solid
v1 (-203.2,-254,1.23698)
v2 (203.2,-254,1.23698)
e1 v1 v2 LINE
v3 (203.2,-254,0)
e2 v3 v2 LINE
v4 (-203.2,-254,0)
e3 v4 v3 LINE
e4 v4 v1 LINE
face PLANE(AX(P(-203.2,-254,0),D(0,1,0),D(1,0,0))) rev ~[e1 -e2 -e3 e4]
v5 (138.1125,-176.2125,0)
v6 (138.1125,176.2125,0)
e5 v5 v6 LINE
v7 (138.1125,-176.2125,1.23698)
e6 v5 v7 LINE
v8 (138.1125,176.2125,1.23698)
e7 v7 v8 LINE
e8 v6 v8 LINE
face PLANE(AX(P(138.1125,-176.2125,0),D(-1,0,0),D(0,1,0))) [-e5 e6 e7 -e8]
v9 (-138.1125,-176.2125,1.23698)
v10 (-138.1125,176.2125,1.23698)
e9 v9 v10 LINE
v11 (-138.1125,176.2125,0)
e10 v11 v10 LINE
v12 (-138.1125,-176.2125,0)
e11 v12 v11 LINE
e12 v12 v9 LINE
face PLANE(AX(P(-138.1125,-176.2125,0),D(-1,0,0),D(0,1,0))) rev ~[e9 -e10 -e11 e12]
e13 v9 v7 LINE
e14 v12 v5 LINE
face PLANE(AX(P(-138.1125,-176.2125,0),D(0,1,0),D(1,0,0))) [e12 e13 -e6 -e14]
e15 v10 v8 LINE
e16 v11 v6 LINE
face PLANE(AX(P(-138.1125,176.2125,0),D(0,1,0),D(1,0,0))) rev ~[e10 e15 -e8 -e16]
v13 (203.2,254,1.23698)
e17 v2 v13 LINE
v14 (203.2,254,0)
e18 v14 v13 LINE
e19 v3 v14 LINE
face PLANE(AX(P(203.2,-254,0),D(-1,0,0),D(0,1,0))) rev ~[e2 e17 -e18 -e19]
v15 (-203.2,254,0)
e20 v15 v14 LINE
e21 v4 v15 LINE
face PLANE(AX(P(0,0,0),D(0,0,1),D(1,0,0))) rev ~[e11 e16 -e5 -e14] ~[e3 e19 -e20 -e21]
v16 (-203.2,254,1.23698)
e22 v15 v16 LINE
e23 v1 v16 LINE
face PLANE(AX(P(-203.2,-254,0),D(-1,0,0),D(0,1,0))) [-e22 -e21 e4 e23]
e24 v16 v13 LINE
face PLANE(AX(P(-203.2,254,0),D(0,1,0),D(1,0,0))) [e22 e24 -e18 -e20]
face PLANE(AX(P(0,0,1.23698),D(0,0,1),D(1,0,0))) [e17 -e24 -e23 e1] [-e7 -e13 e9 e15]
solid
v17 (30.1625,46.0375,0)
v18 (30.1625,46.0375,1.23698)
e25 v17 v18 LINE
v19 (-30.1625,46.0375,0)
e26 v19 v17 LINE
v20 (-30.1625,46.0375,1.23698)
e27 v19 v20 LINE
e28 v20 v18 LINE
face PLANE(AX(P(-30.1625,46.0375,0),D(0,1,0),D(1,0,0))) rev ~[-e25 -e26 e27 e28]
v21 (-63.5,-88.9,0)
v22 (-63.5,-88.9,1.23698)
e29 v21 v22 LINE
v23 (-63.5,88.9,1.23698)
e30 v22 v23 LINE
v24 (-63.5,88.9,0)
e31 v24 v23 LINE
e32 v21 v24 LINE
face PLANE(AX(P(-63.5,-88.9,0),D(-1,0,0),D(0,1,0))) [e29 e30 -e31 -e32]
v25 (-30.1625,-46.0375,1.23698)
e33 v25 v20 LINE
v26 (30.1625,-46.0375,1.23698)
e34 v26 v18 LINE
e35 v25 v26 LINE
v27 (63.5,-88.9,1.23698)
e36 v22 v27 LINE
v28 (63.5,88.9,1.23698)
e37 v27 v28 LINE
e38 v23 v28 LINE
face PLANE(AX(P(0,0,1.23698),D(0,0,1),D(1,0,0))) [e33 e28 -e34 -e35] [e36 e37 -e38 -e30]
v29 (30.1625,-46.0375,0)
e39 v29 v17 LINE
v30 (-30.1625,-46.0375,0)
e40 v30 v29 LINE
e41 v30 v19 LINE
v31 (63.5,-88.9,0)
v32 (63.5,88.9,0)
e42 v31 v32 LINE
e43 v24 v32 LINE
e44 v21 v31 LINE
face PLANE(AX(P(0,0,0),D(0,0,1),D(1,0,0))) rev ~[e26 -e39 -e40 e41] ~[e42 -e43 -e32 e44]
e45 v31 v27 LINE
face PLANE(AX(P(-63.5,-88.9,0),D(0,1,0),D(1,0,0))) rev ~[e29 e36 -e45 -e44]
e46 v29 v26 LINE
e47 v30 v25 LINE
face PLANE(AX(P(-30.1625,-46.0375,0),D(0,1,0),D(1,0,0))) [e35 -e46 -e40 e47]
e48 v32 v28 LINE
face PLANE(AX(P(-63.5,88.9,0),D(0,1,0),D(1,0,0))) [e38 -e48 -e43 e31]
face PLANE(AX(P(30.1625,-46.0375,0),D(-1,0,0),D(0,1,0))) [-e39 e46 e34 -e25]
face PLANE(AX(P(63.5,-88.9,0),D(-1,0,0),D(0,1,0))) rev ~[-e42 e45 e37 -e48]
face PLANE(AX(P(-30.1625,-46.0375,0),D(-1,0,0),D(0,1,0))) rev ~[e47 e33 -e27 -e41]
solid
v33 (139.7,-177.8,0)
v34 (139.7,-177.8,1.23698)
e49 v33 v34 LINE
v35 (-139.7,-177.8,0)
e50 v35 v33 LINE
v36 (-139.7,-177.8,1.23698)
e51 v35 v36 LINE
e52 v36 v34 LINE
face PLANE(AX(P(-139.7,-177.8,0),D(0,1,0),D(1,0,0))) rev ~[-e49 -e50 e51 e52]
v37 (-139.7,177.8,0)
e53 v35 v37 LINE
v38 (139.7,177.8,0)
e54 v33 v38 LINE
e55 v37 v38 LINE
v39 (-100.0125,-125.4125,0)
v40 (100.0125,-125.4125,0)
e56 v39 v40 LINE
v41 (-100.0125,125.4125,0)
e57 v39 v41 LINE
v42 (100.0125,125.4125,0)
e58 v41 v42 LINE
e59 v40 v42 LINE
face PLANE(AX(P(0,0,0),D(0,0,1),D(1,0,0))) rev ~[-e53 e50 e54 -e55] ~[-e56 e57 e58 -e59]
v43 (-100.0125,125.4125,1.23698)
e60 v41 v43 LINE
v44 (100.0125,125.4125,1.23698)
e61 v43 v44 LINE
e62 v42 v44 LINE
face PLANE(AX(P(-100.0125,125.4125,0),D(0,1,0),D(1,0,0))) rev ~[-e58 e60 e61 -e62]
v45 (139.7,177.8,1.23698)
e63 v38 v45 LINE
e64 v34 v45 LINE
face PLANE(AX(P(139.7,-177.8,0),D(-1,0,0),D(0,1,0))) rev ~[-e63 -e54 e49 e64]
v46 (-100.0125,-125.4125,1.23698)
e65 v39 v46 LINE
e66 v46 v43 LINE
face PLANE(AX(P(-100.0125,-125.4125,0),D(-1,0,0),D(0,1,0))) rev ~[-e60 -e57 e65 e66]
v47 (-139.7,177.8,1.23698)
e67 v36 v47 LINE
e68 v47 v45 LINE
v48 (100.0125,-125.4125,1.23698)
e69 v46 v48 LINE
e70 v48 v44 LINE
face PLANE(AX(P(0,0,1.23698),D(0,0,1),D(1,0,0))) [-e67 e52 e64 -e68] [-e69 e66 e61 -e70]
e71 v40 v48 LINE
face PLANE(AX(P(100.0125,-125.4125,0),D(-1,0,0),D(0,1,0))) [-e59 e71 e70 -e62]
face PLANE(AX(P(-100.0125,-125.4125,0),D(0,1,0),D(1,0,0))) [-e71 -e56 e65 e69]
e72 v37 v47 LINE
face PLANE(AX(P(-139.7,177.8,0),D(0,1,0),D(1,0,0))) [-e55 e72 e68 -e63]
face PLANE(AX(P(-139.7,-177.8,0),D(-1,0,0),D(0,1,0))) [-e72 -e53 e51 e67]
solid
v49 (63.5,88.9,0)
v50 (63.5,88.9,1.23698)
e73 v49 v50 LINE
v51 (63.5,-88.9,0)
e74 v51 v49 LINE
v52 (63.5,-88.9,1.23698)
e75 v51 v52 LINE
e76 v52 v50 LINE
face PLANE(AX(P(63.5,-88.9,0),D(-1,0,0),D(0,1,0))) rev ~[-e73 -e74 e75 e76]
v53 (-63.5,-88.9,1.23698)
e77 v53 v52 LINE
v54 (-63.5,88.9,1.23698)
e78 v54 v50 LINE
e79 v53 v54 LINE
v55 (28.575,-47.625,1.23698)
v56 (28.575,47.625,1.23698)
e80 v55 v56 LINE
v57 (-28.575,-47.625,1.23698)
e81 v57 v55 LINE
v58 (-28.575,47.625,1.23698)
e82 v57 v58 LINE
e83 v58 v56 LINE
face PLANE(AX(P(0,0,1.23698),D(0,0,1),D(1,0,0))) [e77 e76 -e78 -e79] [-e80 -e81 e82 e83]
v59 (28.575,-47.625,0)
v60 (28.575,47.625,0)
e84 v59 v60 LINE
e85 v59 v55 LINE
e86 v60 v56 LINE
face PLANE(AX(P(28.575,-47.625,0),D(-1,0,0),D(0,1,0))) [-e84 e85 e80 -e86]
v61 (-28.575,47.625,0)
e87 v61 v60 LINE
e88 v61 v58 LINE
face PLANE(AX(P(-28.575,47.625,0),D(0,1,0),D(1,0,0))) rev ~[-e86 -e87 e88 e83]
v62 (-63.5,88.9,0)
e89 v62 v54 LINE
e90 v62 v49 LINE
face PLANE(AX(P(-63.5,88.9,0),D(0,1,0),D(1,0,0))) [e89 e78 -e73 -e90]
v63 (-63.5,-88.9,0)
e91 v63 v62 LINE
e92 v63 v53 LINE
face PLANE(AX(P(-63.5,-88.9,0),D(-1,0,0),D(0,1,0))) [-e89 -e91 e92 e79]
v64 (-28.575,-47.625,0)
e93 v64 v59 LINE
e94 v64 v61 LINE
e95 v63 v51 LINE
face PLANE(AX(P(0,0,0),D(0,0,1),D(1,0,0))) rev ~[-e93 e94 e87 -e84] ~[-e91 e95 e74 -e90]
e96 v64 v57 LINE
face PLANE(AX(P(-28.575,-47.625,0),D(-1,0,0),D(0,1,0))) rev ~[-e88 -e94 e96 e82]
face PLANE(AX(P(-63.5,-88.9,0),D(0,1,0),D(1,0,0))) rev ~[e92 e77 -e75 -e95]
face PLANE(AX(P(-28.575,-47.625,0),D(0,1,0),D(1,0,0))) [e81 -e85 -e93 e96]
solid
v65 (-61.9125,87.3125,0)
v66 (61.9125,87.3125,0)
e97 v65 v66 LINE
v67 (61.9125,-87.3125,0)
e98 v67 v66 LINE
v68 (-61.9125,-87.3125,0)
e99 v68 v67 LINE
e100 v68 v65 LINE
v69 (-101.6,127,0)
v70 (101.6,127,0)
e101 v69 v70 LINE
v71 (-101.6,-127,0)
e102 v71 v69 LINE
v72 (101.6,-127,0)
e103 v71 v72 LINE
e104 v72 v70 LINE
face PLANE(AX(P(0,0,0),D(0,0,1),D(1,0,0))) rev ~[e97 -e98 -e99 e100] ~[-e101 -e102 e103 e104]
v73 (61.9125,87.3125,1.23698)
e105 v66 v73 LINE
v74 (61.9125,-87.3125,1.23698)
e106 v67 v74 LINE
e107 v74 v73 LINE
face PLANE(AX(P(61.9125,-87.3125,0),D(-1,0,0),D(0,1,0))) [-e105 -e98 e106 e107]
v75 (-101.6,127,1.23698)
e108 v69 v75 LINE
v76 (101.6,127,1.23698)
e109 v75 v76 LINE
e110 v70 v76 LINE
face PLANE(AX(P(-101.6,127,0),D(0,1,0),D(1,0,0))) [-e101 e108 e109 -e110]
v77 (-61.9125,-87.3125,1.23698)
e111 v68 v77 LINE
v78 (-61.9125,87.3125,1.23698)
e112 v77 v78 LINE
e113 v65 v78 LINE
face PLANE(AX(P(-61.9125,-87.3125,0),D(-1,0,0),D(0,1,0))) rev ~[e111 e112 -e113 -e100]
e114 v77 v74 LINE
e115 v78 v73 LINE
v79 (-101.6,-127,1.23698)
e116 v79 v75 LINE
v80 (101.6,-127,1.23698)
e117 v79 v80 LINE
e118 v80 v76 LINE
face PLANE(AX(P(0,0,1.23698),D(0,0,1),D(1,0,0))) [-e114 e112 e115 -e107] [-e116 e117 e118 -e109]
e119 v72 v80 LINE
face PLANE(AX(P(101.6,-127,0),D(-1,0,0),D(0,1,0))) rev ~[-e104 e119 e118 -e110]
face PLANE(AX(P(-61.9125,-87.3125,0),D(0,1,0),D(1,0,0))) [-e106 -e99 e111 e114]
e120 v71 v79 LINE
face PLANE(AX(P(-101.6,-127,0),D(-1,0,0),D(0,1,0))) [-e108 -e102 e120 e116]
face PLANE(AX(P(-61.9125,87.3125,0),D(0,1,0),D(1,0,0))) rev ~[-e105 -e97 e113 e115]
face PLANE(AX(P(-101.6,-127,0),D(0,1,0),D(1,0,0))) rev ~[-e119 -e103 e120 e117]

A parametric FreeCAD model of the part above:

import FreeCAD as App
import Part
import Sketcher
Q = App.Units.Quantity

doc = App.newDocument("Part")
body = doc.addObject("PartDesign::Body", "Body")

sketch1 = doc.addObject("Sketcher::SketchObject", "Sketch")
body.addObject(sketch1)
sketch1.AttachmentSupport = (doc.XY_Plane, [""])
sketch1.MapMode = "FlatFace"
sketch1.addGeometry(Part.LineSegment(App.Vector(-203, 254, 0), App.Vector(-203, -254, 0)), False)
sketch1.addGeometry(Part.LineSegment(App.Vector(-203, -254, 0), App.Vector(203, -254, 0)), False)
sketch1.addGeometry(Part.LineSegment(App.Vector(203, -254, 0), App.Vector(203, 254, 0)), False)
sketch1.addGeometry(Part.LineSegment(App.Vector(203, 254, 0), App.Vector(-203, 254, 0)), False)
sketch1.addGeometry(Part.LineSegment(App.Vector(138, -176, 0), App.Vector(-138, -176, 0)), False)
sketch1.addGeometry(Part.LineSegment(App.Vector(-138, -176, 0), App.Vector(-138, 176, 0)), False)
sketch1.addGeometry(Part.LineSegment(App.Vector(-138, 176, 0), App.Vector(138, 176, 0)), False)
sketch1.addGeometry(Part.LineSegment(App.Vector(138, 176, 0), App.Vector(138, -176, 0)), False)
sketch1.addConstraint(Sketcher.Constraint("Coincident", 0, 2, 1, 1))
sketch1.addConstraint(Sketcher.Constraint("Coincident", 1, 2, 2, 1))
sketch1.addConstraint(Sketcher.Constraint("Coincident", 2, 2, 3, 1))
sketch1.addConstraint(Sketcher.Constraint("Coincident", 3, 2, 0, 1))
sketch1.addConstraint(Sketcher.Constraint("Coincident", 4, 2, 5, 1))
sketch1.addConstraint(Sketcher.Constraint("Coincident", 5, 2, 6, 1))
sketch1.addConstraint(Sketcher.Constraint("Coincident", 6, 2, 7, 1))
sketch1.addConstraint(Sketcher.Constraint("Coincident", 7, 2, 4, 1))
sketch1.addConstraint(Sketcher.Constraint("Vertical", 0))
sketch1.addConstraint(Sketcher.Constraint("Horizontal", 1))
sketch1.addConstraint(Sketcher.Constraint("Vertical", 2))
sketch1.addConstraint(Sketcher.Constraint("Horizontal", 3))
sketch1.addConstraint(Sketcher.Constraint("Horizontal", 4))
sketch1.addConstraint(Sketcher.Constraint("Vertical", 5))
sketch1.addConstraint(Sketcher.Constraint("Horizontal", 6))
sketch1.addConstraint(Sketcher.Constraint("Vertical", 7))
sketch1.addConstraint(Sketcher.Constraint("Symmetric", 0, 2, 2, 2, -1, 1))
sketch1.addConstraint(Sketcher.Constraint("Symmetric", 4, 2, 6, 2, -1, 1))
sketch1.addConstraint(Sketcher.Constraint("DistanceX", 1, 1, 1, 2, Q("16 in")))
sketch1.addConstraint(Sketcher.Constraint("DistanceY", 0, 2, 0, 1, Q("20 in")))
sketch1.addConstraint(Sketcher.Constraint("DistanceX", 4, 2, 4, 1, Q("10.875 in")))
sketch1.addConstraint(Sketcher.Constraint("DistanceY", 5, 1, 5, 2, Q("13.875 in")))
pad1 = doc.addObject("PartDesign::Pad", "Pad")
body.addObject(pad1)
pad1.Profile = sketch1
pad1.Length = Q("0.0487 in")
body2 = doc.addObject("PartDesign::Body", "Body001")

sketch2 = doc.addObject("Sketcher::SketchObject", "Sketch001")
body2.addObject(sketch2)
sketch2.AttachmentSupport = (doc.getObject("XY_Plane001"), [""])
sketch2.MapMode = "FlatFace"
sketch2.addGeometry(Part.LineSegment(App.Vector(-140, 178, 0), App.Vector(-140, -178, 0)), False)
sketch2.addGeometry(Part.LineSegment(App.Vector(-140, -178, 0), App.Vector(140, -178, 0)), False)
sketch2.addGeometry(Part.LineSegment(App.Vector(140, -178, 0), App.Vector(140, 178, 0)), False)
sketch2.addGeometry(Part.LineSegment(App.Vector(140, 178, 0), App.Vector(-140, 178, 0)), False)
sketch2.addGeometry(Part.LineSegment(App.Vector(100, -125, 0), App.Vector(-100, -125, 0)), False)
sketch2.addGeometry(Part.LineSegment(App.Vector(-100, -125, 0), App.Vector(-100, 125, 0)), False)
sketch2.addGeometry(Part.LineSegment(App.Vector(-100, 125, 0), App.Vector(100, 125, 0)), False)
sketch2.addGeometry(Part.LineSegment(App.Vector(100, 125, 0), App.Vector(100, -125, 0)), False)
sketch2.addConstraint(Sketcher.Constraint("Coincident", 0, 2, 1, 1))
sketch2.addConstraint(Sketcher.Constraint("Coincident", 1, 2, 2, 1))
sketch2.addConstraint(Sketcher.Constraint("Coincident", 2, 2, 3, 1))
sketch2.addConstraint(Sketcher.Constraint("Coincident", 3, 2, 0, 1))
sketch2.addConstraint(Sketcher.Constraint("Coincident", 4, 2, 5, 1))
sketch2.addConstraint(Sketcher.Constraint("Coincident", 5, 2, 6, 1))
sketch2.addConstraint(Sketcher.Constraint("Coincident", 6, 2, 7, 1))
sketch2.addConstraint(Sketcher.Constraint("Coincident", 7, 2, 4, 1))
sketch2.addConstraint(Sketcher.Constraint("Vertical", 0))
sketch2.addConstraint(Sketcher.Constraint("Horizontal", 1))
sketch2.addConstraint(Sketcher.Constraint("Vertical", 2))
sketch2.addConstraint(Sketcher.Constraint("Horizontal", 3))
sketch2.addConstraint(Sketcher.Constraint("Horizontal", 4))
sketch2.addConstraint(Sketcher.Constraint("Vertical", 5))
sketch2.addConstraint(Sketcher.Constraint("Horizontal", 6))
sketch2.addConstraint(Sketcher.Constraint("Vertical", 7))
sketch2.addConstraint(Sketcher.Constraint("Symmetric", 0, 2, 2, 2, -1, 1))
sketch2.addConstraint(Sketcher.Constraint("Symmetric", 4, 2, 6, 2, -1, 1))
sketch2.addConstraint(Sketcher.Constraint("DistanceX", 1, 1, 1, 2, Q("11 in")))
sketch2.addConstraint(Sketcher.Constraint("DistanceY", 0, 2, 0, 1, Q("14 in")))
sketch2.addConstraint(Sketcher.Constraint("DistanceX", 4, 2, 4, 1, Q("7.875 in")))
sketch2.addConstraint(Sketcher.Constraint("DistanceY", 5, 1, 5, 2, Q("9.875 in")))
pad2 = doc.addObject("PartDesign::Pad", "Pad001")
body2.addObject(pad2)
pad2.Profile = sketch2
pad2.Length = Q("0.0487 in")
body3 = doc.addObject("PartDesign::Body", "Body002")

sketch3 = doc.addObject("Sketcher::SketchObject", "Sketch002")
body3.addObject(sketch3)
sketch3.AttachmentSupport = (doc.getObject("XY_Plane002"), [""])
sketch3.MapMode = "FlatFace"
sketch3.addGeometry(Part.LineSegment(App.Vector(-102, 127, 0), App.Vector(-102, -127, 0)), False)
sketch3.addGeometry(Part.LineSegment(App.Vector(-102, -127, 0), App.Vector(102, -127, 0)), False)
sketch3.addGeometry(Part.LineSegment(App.Vector(102, -127, 0), App.Vector(102, 127, 0)), False)
sketch3.addGeometry(Part.LineSegment(App.Vector(102, 127, 0), App.Vector(-102, 127, 0)), False)
sketch3.addGeometry(Part.LineSegment(App.Vector(62, -87, 0), App.Vector(-62, -87, 0)), False)
sketch3.addGeometry(Part.LineSegment(App.Vector(-62, -87, 0), App.Vector(-62, 87, 0)), False)
sketch3.addGeometry(Part.LineSegment(App.Vector(-62, 87, 0), App.Vector(62, 87, 0)), False)
sketch3.addGeometry(Part.LineSegment(App.Vector(62, 87, 0), App.Vector(62, -87, 0)), False)
sketch3.addConstraint(Sketcher.Constraint("Coincident", 0, 2, 1, 1))
sketch3.addConstraint(Sketcher.Constraint("Coincident", 1, 2, 2, 1))
sketch3.addConstraint(Sketcher.Constraint("Coincident", 2, 2, 3, 1))
sketch3.addConstraint(Sketcher.Constraint("Coincident", 3, 2, 0, 1))
sketch3.addConstraint(Sketcher.Constraint("Coincident", 4, 2, 5, 1))
sketch3.addConstraint(Sketcher.Constraint("Coincident", 5, 2, 6, 1))
sketch3.addConstraint(Sketcher.Constraint("Coincident", 6, 2, 7, 1))
sketch3.addConstraint(Sketcher.Constraint("Coincident", 7, 2, 4, 1))
sketch3.addConstraint(Sketcher.Constraint("Vertical", 0))
sketch3.addConstraint(Sketcher.Constraint("Horizontal", 1))
sketch3.addConstraint(Sketcher.Constraint("Vertical", 2))
sketch3.addConstraint(Sketcher.Constraint("Horizontal", 3))
sketch3.addConstraint(Sketcher.Constraint("Horizontal", 4))
sketch3.addConstraint(Sketcher.Constraint("Vertical", 5))
sketch3.addConstraint(Sketcher.Constraint("Horizontal", 6))
sketch3.addConstraint(Sketcher.Constraint("Vertical", 7))
sketch3.addConstraint(Sketcher.Constraint("Symmetric", 0, 2, 2, 2, -1, 1))
sketch3.addConstraint(Sketcher.Constraint("Symmetric", 4, 2, 6, 2, -1, 1))
sketch3.addConstraint(Sketcher.Constraint("DistanceX", 1, 1, 1, 2, Q("8 in")))
sketch3.addConstraint(Sketcher.Constraint("DistanceY", 0, 2, 0, 1, Q("10 in")))
sketch3.addConstraint(Sketcher.Constraint("DistanceX", 4, 2, 4, 1, Q("4.875 in")))
sketch3.addConstraint(Sketcher.Constraint("DistanceY", 5, 1, 5, 2, Q("6.875 in")))
pad3 = doc.addObject("PartDesign::Pad", "Pad002")
body3.addObject(pad3)
pad3.Profile = sketch3
pad3.Length = Q("0.0487 in")
body4 = doc.addObject("PartDesign::Body", "Body003")

sketch4 = doc.addObject("Sketcher::SketchObject", "Sketch003")
body4.addObject(sketch4)
sketch4.AttachmentSupport = (doc.getObject("XY_Plane003"), [""])
sketch4.MapMode = "FlatFace"
sketch4.addGeometry(Part.LineSegment(App.Vector(-64, 89, 0), App.Vector(-64, -89, 0)), False)
sketch4.addGeometry(Part.LineSegment(App.Vector(-64, -89, 0), App.Vector(64, -89, 0)), False)
sketch4.addGeometry(Part.LineSegment(App.Vector(64, -89, 0), App.Vector(64, 89, 0)), False)
sketch4.addGeometry(Part.LineSegment(App.Vector(64, 89, 0), App.Vector(-64, 89, 0)), False)
sketch4.addGeometry(Part.LineSegment(App.Vector(30, -46, 0), App.Vector(-30, -46, 0)), False)
sketch4.addGeometry(Part.LineSegment(App.Vector(-30, -46, 0), App.Vector(-30, 46, 0)), False)
sketch4.addGeometry(Part.LineSegment(App.Vector(-30, 46, 0), App.Vector(30, 46, 0)), False)
sketch4.addGeometry(Part.LineSegment(App.Vector(30, 46, 0), App.Vector(30, -46, 0)), False)
sketch4.addConstraint(Sketcher.Constraint("Coincident", 0, 2, 1, 1))
sketch4.addConstraint(Sketcher.Constraint("Coincident", 1, 2, 2, 1))
sketch4.addConstraint(Sketcher.Constraint("Coincident", 2, 2, 3, 1))
sketch4.addConstraint(Sketcher.Constraint("Coincident", 3, 2, 0, 1))
sketch4.addConstraint(Sketcher.Constraint("Coincident", 4, 2, 5, 1))
sketch4.addConstraint(Sketcher.Constraint("Coincident", 5, 2, 6, 1))
sketch4.addConstraint(Sketcher.Constraint("Coincident", 6, 2, 7, 1))
sketch4.addConstraint(Sketcher.Constraint("Coincident", 7, 2, 4, 1))
sketch4.addConstraint(Sketcher.Constraint("Vertical", 0))
sketch4.addConstraint(Sketcher.Constraint("Horizontal", 1))
sketch4.addConstraint(Sketcher.Constraint("Vertical", 2))
sketch4.addConstraint(Sketcher.Constraint("Horizontal", 3))
sketch4.addConstraint(Sketcher.Constraint("Horizontal", 4))
sketch4.addConstraint(Sketcher.Constraint("Vertical", 5))
sketch4.addConstraint(Sketcher.Constraint("Horizontal", 6))
sketch4.addConstraint(Sketcher.Constraint("Vertical", 7))
sketch4.addConstraint(Sketcher.Constraint("Symmetric", 0, 2, 2, 2, -1, 1))
sketch4.addConstraint(Sketcher.Constraint("Symmetric", 4, 2, 6, 2, -1, 1))
sketch4.addConstraint(Sketcher.Constraint("DistanceX", 1, 1, 1, 2, Q("5 in")))
sketch4.addConstraint(Sketcher.Constraint("DistanceY", 0, 2, 0, 1, Q("7 in")))
sketch4.addConstraint(Sketcher.Constraint("DistanceX", 4, 2, 4, 1, Q("2.375 in")))
sketch4.addConstraint(Sketcher.Constraint("DistanceY", 5, 1, 5, 2, Q("3.625 in")))
pad4 = doc.addObject("PartDesign::Pad", "Pad003")
body4.addObject(pad4)
pad4.Profile = sketch4
pad4.Length = Q("0.0487 in")
body5 = doc.addObject("PartDesign::Body", "Body004")

sketch5 = doc.addObject("Sketcher::SketchObject", "Sketch004")
body5.addObject(sketch5)
sketch5.AttachmentSupport = (doc.getObject("XY_Plane004"), [""])
sketch5.MapMode = "FlatFace"
sketch5.addGeometry(Part.LineSegment(App.Vector(-64, 89, 0), App.Vector(-64, -89, 0)), False)
sketch5.addGeometry(Part.LineSegment(App.Vector(-64, -89, 0), App.Vector(64, -89, 0)), False)
sketch5.addGeometry(Part.LineSegment(App.Vector(64, -89, 0), App.Vector(64, 89, 0)), False)
sketch5.addGeometry(Part.LineSegment(App.Vector(64, 89, 0), App.Vector(-64, 89, 0)), False)
sketch5.addGeometry(Part.LineSegment(App.Vector(29, -48, 0), App.Vector(-29, -48, 0)), False)
sketch5.addGeometry(Part.LineSegment(App.Vector(-29, -48, 0), App.Vector(-29, 48, 0)), False)
sketch5.addGeometry(Part.LineSegment(App.Vector(-29, 48, 0), App.Vector(29, 48, 0)), False)
sketch5.addGeometry(Part.LineSegment(App.Vector(29, 48, 0), App.Vector(29, -48, 0)), False)
sketch5.addConstraint(Sketcher.Constraint("Coincident", 0, 2, 1, 1))
sketch5.addConstraint(Sketcher.Constraint("Coincident", 1, 2, 2, 1))
sketch5.addConstraint(Sketcher.Constraint("Coincident", 2, 2, 3, 1))
sketch5.addConstraint(Sketcher.Constraint("Coincident", 3, 2, 0, 1))
sketch5.addConstraint(Sketcher.Constraint("Coincident", 4, 2, 5, 1))
sketch5.addConstraint(Sketcher.Constraint("Coincident", 5, 2, 6, 1))
sketch5.addConstraint(Sketcher.Constraint("Coincident", 6, 2, 7, 1))
sketch5.addConstraint(Sketcher.Constraint("Coincident", 7, 2, 4, 1))
sketch5.addConstraint(Sketcher.Constraint("Vertical", 0))
sketch5.addConstraint(Sketcher.Constraint("Horizontal", 1))
sketch5.addConstraint(Sketcher.Constraint("Vertical", 2))
sketch5.addConstraint(Sketcher.Constraint("Horizontal", 3))
sketch5.addConstraint(Sketcher.Constraint("Horizontal", 4))
sketch5.addConstraint(Sketcher.Constraint("Vertical", 5))
sketch5.addConstraint(Sketcher.Constraint("Horizontal", 6))
sketch5.addConstraint(Sketcher.Constraint("Vertical", 7))
sketch5.addConstraint(Sketcher.Constraint("Symmetric", 0, 2, 2, 2, -1, 1))
sketch5.addConstraint(Sketcher.Constraint("Symmetric", 4, 2, 6, 2, -1, 1))
sketch5.addConstraint(Sketcher.Constraint("DistanceX", 1, 1, 1, 2, Q("5 in")))
sketch5.addConstraint(Sketcher.Constraint("DistanceY", 0, 2, 0, 1, Q("7 in")))
sketch5.addConstraint(Sketcher.Constraint("DistanceX", 4, 2, 4, 1, Q("2.25 in")))
sketch5.addConstraint(Sketcher.Constraint("DistanceY", 5, 1, 5, 2, Q("3.75 in")))
pad5 = doc.addObject("PartDesign::Pad", "Pad004")
body5.addObject(pad5)
pad5.Profile = sketch5
pad5.Length = Q("0.0487 in")

doc.recompute()
